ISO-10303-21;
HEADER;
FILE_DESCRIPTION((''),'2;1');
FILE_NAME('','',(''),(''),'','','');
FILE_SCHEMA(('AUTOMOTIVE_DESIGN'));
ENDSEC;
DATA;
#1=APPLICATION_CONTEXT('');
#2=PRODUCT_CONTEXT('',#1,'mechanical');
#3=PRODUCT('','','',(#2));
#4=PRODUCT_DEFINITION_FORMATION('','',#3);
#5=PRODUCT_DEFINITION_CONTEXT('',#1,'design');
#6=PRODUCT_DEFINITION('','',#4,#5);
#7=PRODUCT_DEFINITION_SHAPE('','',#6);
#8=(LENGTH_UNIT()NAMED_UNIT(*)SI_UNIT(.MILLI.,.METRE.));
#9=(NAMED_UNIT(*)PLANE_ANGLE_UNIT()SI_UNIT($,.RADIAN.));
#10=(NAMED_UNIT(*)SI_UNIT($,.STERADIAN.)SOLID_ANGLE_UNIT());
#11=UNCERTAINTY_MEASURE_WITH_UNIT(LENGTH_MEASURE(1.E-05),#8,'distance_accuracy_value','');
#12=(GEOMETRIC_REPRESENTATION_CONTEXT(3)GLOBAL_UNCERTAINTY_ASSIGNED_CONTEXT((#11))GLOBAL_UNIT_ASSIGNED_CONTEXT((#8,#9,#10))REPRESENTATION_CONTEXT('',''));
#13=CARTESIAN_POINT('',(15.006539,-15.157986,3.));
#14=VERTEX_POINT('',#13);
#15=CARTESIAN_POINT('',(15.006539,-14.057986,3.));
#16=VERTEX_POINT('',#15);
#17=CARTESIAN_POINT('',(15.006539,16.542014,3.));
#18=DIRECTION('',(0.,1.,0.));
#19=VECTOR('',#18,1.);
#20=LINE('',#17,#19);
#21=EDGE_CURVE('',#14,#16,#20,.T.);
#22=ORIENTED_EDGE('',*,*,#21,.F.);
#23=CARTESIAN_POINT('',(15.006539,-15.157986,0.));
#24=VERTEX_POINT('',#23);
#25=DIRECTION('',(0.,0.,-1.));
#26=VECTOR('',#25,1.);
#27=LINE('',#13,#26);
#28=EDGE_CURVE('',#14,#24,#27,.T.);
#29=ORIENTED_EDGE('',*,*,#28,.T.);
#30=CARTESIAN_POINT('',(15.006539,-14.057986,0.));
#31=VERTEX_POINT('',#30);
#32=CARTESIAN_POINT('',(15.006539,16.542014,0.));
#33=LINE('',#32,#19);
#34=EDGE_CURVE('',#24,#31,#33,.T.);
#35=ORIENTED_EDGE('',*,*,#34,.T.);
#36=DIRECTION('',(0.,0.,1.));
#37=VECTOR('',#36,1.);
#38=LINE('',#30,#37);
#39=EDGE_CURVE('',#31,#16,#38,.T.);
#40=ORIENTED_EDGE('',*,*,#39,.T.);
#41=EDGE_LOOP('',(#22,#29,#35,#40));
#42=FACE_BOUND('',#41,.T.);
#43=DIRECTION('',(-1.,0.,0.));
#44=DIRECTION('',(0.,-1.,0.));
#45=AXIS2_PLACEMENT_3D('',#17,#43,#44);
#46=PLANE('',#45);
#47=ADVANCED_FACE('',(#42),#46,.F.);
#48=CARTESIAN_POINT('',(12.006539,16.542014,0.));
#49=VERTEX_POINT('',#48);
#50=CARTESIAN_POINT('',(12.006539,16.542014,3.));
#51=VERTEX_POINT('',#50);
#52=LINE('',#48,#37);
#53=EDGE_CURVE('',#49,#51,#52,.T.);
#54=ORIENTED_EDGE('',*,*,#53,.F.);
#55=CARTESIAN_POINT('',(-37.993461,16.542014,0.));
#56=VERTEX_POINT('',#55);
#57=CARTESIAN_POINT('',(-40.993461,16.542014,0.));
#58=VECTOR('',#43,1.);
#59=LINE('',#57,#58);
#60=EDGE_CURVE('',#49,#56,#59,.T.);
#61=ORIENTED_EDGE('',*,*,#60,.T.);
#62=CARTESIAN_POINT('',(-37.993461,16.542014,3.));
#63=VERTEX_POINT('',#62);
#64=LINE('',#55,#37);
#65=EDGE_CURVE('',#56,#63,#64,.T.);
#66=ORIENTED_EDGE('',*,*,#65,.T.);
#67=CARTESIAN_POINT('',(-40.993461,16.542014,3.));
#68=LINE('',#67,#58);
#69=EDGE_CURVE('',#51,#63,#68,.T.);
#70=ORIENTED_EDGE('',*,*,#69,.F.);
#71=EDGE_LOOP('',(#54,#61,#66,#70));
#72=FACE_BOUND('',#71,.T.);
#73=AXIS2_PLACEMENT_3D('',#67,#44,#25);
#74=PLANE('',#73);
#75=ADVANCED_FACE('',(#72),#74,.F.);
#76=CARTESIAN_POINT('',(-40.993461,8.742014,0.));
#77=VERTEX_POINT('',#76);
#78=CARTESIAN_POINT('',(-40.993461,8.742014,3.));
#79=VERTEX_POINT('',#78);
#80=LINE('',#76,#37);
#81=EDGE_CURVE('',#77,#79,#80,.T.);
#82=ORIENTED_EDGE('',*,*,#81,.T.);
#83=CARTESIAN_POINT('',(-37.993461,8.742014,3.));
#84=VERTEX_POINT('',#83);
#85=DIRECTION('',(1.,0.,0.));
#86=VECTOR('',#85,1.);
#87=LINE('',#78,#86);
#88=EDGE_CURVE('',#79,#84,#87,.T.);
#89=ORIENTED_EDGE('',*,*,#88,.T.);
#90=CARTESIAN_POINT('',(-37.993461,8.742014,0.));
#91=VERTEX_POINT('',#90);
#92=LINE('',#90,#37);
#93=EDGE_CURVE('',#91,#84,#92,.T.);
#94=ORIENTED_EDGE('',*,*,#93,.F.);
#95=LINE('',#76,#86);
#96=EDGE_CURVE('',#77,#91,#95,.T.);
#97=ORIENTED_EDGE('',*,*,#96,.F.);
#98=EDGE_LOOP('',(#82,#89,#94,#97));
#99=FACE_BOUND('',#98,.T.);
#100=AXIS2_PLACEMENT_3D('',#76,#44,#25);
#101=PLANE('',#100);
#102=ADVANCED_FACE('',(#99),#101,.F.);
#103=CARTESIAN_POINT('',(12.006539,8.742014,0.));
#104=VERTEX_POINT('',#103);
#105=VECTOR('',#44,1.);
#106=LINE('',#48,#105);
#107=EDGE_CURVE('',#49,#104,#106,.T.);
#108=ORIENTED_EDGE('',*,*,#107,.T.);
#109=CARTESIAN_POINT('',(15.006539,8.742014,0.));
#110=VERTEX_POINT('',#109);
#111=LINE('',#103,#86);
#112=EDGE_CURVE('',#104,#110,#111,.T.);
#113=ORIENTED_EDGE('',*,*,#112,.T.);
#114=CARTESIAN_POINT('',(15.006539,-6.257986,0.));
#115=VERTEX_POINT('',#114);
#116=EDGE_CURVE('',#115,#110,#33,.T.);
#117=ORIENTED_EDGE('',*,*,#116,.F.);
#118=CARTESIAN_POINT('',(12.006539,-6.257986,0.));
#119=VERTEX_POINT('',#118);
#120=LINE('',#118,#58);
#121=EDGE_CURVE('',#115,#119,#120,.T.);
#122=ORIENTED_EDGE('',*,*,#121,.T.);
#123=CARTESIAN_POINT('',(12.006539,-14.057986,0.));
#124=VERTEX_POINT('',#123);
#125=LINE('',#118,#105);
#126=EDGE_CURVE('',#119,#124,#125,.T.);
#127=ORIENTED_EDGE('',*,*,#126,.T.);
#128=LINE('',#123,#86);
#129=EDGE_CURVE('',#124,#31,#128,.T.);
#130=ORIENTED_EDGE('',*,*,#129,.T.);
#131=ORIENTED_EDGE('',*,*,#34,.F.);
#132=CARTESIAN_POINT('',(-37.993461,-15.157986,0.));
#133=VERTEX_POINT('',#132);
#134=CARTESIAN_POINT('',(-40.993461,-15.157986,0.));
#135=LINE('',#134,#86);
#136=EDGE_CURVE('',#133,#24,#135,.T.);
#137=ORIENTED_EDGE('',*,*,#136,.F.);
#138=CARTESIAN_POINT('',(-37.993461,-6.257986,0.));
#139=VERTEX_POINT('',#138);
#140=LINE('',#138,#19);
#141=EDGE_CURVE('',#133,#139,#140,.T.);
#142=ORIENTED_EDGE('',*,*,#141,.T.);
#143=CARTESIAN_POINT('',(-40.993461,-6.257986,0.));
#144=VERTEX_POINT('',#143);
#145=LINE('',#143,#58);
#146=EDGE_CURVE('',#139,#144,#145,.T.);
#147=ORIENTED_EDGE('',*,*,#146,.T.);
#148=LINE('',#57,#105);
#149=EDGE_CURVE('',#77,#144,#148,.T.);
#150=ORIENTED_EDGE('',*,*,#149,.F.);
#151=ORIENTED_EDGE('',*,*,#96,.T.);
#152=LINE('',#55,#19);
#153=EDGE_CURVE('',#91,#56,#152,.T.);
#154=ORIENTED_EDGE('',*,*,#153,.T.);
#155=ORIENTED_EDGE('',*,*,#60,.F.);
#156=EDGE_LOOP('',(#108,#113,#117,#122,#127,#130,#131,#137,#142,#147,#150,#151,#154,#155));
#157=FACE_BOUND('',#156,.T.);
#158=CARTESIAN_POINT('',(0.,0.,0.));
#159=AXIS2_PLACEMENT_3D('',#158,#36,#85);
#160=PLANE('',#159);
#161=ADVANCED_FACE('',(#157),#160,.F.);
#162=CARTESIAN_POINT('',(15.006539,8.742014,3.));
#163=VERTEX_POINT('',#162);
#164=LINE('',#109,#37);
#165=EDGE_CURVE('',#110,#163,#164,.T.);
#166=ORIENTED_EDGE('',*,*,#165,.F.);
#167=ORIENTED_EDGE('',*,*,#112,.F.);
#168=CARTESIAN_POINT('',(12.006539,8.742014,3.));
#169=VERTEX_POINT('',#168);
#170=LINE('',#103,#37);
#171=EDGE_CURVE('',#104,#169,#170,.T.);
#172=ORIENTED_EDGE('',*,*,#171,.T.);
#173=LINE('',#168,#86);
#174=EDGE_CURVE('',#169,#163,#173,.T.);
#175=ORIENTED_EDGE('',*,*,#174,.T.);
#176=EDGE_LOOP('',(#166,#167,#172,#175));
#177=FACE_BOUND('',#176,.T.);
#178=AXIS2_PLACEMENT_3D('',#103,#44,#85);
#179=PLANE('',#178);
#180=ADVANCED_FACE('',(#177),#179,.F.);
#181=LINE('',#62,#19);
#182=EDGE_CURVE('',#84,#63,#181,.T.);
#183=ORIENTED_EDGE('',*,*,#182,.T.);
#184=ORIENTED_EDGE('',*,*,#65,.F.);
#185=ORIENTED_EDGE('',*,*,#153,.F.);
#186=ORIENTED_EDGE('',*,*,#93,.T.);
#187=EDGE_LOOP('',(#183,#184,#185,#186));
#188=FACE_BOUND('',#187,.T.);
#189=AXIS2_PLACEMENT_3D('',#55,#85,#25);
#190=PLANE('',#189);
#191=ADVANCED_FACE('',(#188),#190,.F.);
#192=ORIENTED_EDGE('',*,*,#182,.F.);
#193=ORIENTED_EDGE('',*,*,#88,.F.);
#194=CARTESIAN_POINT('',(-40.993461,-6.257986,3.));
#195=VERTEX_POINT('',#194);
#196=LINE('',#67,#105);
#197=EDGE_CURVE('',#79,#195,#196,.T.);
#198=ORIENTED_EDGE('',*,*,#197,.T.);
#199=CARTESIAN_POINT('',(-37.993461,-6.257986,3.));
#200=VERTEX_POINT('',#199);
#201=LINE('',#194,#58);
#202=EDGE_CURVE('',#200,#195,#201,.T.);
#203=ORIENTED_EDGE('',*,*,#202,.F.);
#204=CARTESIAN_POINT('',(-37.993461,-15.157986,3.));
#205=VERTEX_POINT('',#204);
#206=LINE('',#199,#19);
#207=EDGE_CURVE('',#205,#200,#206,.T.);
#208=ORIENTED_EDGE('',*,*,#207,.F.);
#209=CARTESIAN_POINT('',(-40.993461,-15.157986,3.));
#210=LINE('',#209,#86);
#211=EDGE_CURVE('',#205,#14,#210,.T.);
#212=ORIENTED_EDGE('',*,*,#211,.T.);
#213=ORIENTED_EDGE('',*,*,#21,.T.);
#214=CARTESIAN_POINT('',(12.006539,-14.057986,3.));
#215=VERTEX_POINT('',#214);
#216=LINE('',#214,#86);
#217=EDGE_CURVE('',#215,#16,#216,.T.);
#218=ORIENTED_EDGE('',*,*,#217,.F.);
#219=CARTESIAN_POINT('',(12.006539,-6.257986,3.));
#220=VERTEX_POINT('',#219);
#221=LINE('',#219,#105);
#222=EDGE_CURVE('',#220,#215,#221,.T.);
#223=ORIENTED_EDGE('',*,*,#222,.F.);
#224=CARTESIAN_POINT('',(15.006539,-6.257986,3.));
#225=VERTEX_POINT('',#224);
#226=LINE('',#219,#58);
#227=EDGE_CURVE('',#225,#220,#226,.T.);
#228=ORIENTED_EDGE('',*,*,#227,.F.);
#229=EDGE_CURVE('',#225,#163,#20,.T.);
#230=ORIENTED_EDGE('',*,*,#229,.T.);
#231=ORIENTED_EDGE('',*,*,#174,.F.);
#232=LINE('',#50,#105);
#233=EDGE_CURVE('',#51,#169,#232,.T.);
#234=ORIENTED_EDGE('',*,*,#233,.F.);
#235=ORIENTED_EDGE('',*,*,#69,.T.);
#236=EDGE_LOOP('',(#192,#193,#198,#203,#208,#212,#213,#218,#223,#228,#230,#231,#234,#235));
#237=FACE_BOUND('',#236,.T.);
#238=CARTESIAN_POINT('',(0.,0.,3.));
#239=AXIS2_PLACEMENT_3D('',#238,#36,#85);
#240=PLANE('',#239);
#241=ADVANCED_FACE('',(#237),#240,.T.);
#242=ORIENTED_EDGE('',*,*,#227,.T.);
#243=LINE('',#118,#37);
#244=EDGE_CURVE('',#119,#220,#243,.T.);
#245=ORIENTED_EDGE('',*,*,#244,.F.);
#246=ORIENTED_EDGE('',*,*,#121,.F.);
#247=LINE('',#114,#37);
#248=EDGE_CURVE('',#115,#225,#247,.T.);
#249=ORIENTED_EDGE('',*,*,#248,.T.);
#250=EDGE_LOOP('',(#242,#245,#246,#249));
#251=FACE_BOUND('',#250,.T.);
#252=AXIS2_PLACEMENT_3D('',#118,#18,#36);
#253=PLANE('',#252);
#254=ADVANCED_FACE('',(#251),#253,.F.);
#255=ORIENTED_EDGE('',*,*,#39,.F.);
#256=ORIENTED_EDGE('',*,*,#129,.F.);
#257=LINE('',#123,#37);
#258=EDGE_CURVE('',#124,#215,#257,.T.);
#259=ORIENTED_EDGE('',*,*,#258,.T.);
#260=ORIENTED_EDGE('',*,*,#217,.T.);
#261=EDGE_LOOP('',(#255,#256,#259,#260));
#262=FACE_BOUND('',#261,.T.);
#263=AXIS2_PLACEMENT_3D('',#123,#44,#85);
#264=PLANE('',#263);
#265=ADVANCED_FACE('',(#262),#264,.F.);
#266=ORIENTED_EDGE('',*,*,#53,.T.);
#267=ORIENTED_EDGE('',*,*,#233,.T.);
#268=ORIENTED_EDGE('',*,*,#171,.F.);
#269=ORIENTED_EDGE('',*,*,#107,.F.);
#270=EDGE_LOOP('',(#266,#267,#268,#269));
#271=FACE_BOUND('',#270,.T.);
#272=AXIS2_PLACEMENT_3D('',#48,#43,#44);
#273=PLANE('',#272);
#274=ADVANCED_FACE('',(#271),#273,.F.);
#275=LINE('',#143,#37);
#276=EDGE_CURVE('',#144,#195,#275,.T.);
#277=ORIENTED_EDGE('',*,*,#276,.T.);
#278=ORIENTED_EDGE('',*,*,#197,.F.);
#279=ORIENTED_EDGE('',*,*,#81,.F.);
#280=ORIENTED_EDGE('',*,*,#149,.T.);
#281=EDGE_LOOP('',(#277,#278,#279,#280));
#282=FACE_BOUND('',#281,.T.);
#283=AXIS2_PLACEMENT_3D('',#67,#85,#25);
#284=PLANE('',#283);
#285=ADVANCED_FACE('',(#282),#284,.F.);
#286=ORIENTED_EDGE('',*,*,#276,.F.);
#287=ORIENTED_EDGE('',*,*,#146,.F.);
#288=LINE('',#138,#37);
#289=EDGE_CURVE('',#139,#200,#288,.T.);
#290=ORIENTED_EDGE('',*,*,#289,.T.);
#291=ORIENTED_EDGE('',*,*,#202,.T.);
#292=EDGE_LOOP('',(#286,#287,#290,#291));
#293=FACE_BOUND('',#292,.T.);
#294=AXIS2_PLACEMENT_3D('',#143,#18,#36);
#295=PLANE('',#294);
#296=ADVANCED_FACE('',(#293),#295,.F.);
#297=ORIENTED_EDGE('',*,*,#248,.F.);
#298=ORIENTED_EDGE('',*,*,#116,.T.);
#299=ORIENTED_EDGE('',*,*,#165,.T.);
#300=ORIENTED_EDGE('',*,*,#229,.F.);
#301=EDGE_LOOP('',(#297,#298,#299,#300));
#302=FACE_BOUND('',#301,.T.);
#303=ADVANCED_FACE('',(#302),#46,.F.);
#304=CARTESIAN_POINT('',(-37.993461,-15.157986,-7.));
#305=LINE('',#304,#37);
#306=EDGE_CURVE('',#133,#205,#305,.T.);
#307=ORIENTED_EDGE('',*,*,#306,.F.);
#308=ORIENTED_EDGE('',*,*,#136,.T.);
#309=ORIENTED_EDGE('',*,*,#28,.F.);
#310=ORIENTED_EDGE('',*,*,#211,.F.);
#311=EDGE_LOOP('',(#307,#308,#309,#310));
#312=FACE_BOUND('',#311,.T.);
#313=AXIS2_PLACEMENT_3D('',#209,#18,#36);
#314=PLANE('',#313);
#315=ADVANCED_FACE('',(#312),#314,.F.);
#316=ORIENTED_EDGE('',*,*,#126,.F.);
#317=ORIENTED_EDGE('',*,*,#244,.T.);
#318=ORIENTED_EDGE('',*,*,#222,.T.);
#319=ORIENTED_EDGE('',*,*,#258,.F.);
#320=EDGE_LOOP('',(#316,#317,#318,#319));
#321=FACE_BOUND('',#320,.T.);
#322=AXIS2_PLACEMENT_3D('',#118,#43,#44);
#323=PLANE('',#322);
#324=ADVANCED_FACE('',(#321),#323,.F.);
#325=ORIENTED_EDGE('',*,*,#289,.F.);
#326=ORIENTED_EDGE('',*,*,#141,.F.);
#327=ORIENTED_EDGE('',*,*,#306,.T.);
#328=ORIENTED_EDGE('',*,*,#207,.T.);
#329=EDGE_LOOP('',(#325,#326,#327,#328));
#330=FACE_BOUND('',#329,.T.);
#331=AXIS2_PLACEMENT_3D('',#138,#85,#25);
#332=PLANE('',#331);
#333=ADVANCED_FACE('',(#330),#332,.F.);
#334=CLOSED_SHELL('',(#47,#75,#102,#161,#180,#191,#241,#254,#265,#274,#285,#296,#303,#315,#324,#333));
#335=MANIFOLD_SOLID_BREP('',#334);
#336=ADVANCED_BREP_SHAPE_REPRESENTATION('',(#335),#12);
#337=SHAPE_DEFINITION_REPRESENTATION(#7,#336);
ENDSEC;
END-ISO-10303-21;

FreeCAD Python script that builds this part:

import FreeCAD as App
import Part
import Sketcher
Q = App.Units.Quantity

doc = App.newDocument("Part")
body = doc.addObject("PartDesign::Body", "Body")

# Sketch on XY plane
sketch1 = doc.addObject("Sketcher::SketchObject", "Sketch")
body.addObject(sketch1)
sketch1.AttachmentSupport = (doc.XY_Plane, [""])
sketch1.MapMode = "FlatFace"
sketch1.addGeometry([
    Part.LineSegment(App.Vector(-41, 17, 0), App.Vector(-41, -15, 0)),
    Part.LineSegment(App.Vector(-41, -15, 0), App.Vector(15, -15, 0)),
    Part.LineSegment(App.Vector(15, -15, 0), App.Vector(15, 17, 0)),
    Part.LineSegment(App.Vector(15, 17, 0), App.Vector(-41, 17, 0)),
], False)
sketch1.addConstraint([
    Sketcher.Constraint("Coincident", 0, 2, 1, 1),
    Sketcher.Constraint("Coincident", 1, 2, 2, 1),
    Sketcher.Constraint("Coincident", 2, 2, 3, 1),
    Sketcher.Constraint("Coincident", 3, 2, 0, 1),
    Sketcher.Constraint("Vertical", 0),
    Sketcher.Constraint("Horizontal", 1),
    Sketcher.Constraint("Vertical", 2),
    Sketcher.Constraint("Horizontal", 3),
    Sketcher.Constraint("DistanceX", 1, 1, 1, 2, Q("56 mm")),
    Sketcher.Constraint("DistanceY", 0, 2, 0, 1, Q("31.7 mm")),
    Sketcher.Constraint("DistanceX", 0, 2, -1, 1, Q("40.993461 mm")),
    Sketcher.Constraint("DistanceY", 0, 2, -1, 1, Q("15.157986 mm")),
])
pad1 = doc.addObject("PartDesign::Pad", "Pad")
body.addObject(pad1)
pad1.Profile = sketch1
pad1.Length = 3

# Sketch on XY plane
sketch2 = doc.addObject("Sketcher::SketchObject", "Sketch001")
body.addObject(sketch2)
sketch2.AttachmentSupport = (doc.XY_Plane, [""])
sketch2.MapMode = "FlatFace"
sketch2.AttachmentOffset = App.Placement(App.Vector(0, 0, 3), App.Rotation())
sketch2.addGeometry([
    Part.LineSegment(App.Vector(-41, 16.5, 0), App.Vector(-41, 8.7, 0)),
    Part.LineSegment(App.Vector(-41, 8.7, 0), App.Vector(-38, 8.7, 0)),
    Part.LineSegment(App.Vector(-38, 8.7, 0), App.Vector(-38, 16.5, 0)),
    Part.LineSegment(App.Vector(-38, 16.5, 0), App.Vector(-41, 16.5, 0)),
], False)
sketch2.addConstraint([
    Sketcher.Constraint("Coincident", 0, 2, 1, 1),
    Sketcher.Constraint("Coincident", 1, 2, 2, 1),
    Sketcher.Constraint("Coincident", 2, 2, 3, 1),
    Sketcher.Constraint("Coincident", 3, 2, 0, 1),
    Sketcher.Constraint("Vertical", 0),
    Sketcher.Constraint("Horizontal", 1),
    Sketcher.Constraint("Vertical", 2),
    Sketcher.Constraint("Horizontal", 3),
    Sketcher.Constraint("DistanceX", 1, 1, 1, 2, Q("3 mm")),
    Sketcher.Constraint("DistanceY", 0, 2, 0, 1, Q("7.8 mm")),
    Sketcher.Constraint("DistanceX", 0, 2, -1, 1, Q("40.993461 mm")),
    Sketcher.Constraint("DistanceY", -1, 1, 0, 2, Q("8.742014 mm")),
])
pocket1 = doc.addObject("PartDesign::Pocket", "Pocket")
body.addObject(pocket1)
pocket1.Profile = sketch2
pocket1.Type = "ThroughAll"
doc.recompute()

linearpattern = doc.addObject("PartDesign::LinearPattern", "LinearPattern")
body.addObject(linearpattern)
linearpattern.Originals = [pocket1]
linearpattern.Direction = (doc.Y_Axis, [""])
linearpattern.Mode = "offset"
linearpattern.Offset = 22.8
linearpattern.Occurrences = 2
linearpattern.Reversed = True
body.Tip = linearpattern

# Sketch on XY plane
sketch3 = doc.addObject("Sketcher::SketchObject", "Sketch002")
body.addObject(sketch3)
sketch3.AttachmentSupport = (doc.XY_Plane, [""])
sketch3.MapMode = "FlatFace"
sketch3.AttachmentOffset = App.Placement(App.Vector(0, 0, 3), App.Rotation())
sketch3.addGeometry([
    Part.LineSegment(App.Vector(12, 16.5, 0), App.Vector(12, 8.7, 0)),
    Part.LineSegment(App.Vector(12, 8.7, 0), App.Vector(15, 8.7, 0)),
    Part.LineSegment(App.Vector(15, 8.7, 0), App.Vector(15, 16.5, 0)),
    Part.LineSegment(App.Vector(15, 16.5, 0), App.Vector(12, 16.5, 0)),
], False)
sketch3.addConstraint([
    Sketcher.Constraint("Coincident", 0, 2, 1, 1),
    Sketcher.Constraint("Coincident", 1, 2, 2, 1),
    Sketcher.Constraint("Coincident", 2, 2, 3, 1),
    Sketcher.Constraint("Coincident", 3, 2, 0, 1),
    Sketcher.Constraint("Vertical", 0),
    Sketcher.Constraint("Horizontal", 1),
    Sketcher.Constraint("Vertical", 2),
    Sketcher.Constraint("Horizontal", 3),
    Sketcher.Constraint("DistanceX", 1, 1, 1, 2, Q("3 mm")),
    Sketcher.Constraint("DistanceY", 0, 2, 0, 1, Q("7.8 mm")),
    Sketcher.Constraint("DistanceX", -1, 1, 0, 2, Q("12.006539 mm")),
    Sketcher.Constraint("DistanceY", -1, 1, 0, 2, Q("8.742014 mm")),
])
pocket2 = doc.addObject("PartDesign::Pocket", "Pocket001")
body.addObject(pocket2)
pocket2.Profile = sketch3
pocket2.Type = "ThroughAll"
doc.recompute()

linearpattern2 = doc.addObject("PartDesign::LinearPattern", "LinearPattern001")
body.addObject(linearpattern2)
linearpattern2.Originals = [pocket2]
linearpattern2.Direction = (doc.Y_Axis, [""])
linearpattern2.Mode = "offset"
linearpattern2.Offset = 22.8
linearpattern2.Occurrences = 4
linearpattern2.Reversed = True
body.Tip = linearpattern2

# Sketch on XY plane
sketch4 = doc.addObject("Sketcher::SketchObject", "Sketch003")
body.addObject(sketch4)
sketch4.AttachmentSupport = (doc.XY_Plane, [""])
sketch4.MapMode = "FlatFace"
sketch4.AttachmentOffset = App.Placement(App.Vector(0, 0, 3), App.Rotation())
sketch4.addGeometry([
    Part.LineSegment(App.Vector(-41, -14.1, 0), App.Vector(-41, -15.2, 0)),
    Part.LineSegment(App.Vector(-41, -15.2, 0), App.Vector(-38, -15.2, 0)),
    Part.LineSegment(App.Vector(-38, -15.2, 0), App.Vector(-38, -14.1, 0)),
    Part.LineSegment(App.Vector(-38, -14.1, 0), App.Vector(-41, -14.1, 0)),
], False)
sketch4.addConstraint([
    Sketcher.Constraint("Coincident", 0, 2, 1, 1),
    Sketcher.Constraint("Coincident", 1, 2, 2, 1),
    Sketcher.Constraint("Coincident", 2, 2, 3, 1),
    Sketcher.Constraint("Coincident", 3, 2, 0, 1),
    Sketcher.Constraint("Vertical", 0),
    Sketcher.Constraint("Horizontal", 1),
    Sketcher.Constraint("Vertical", 2),
    Sketcher.Constraint("Horizontal", 3),
    Sketcher.Constraint("DistanceX", 1, 1, 1, 2, Q("3 mm")),
    Sketcher.Constraint("DistanceY", 0, 2, 0, 1, Q("1.1 mm")),
    Sketcher.Constraint("DistanceX", 0, 2, -1, 1, Q("40.993461 mm")),
    Sketcher.Constraint("DistanceY", 0, 2, -1, 1, Q("15.157986 mm")),
])
pocket3 = doc.addObject("PartDesign::Pocket", "Pocket002")
body.addObject(pocket3)
pocket3.Profile = sketch4
pocket3.Length = 10

doc.recompute()
